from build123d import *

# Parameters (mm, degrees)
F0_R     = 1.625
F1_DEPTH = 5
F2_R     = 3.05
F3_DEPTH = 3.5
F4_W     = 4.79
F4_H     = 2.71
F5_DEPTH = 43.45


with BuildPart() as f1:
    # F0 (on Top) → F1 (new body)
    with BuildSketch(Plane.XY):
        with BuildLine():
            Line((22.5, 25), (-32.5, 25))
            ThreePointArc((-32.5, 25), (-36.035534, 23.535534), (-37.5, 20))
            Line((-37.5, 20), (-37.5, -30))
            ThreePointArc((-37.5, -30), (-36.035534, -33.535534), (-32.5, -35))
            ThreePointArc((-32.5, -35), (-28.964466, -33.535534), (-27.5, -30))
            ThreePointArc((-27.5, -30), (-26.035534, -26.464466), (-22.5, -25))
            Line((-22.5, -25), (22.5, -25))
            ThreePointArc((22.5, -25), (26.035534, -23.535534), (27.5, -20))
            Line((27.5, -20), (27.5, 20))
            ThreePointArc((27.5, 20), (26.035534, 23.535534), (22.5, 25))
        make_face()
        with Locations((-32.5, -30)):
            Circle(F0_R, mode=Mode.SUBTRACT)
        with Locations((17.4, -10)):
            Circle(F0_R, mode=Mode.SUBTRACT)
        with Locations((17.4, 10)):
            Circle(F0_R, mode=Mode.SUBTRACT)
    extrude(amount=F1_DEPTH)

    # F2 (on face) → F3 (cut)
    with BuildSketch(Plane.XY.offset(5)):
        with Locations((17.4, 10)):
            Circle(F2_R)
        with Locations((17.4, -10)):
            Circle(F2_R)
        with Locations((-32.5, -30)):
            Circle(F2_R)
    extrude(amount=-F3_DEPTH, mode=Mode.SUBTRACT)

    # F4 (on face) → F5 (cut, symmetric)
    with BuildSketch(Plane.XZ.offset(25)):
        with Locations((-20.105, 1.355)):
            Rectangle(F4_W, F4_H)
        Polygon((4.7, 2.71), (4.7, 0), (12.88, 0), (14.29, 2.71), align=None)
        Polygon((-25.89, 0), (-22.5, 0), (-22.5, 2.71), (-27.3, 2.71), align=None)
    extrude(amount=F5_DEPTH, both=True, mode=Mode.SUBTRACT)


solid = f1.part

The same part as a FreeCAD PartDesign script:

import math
import FreeCAD as App
import Part
import Sketcher

V = App.Vector
Q = App.Units.Quantity


def add_polygon(sketch, points):
    """Adds a closed chain of lines whose ends are joined by coincident constraints."""
    first, n = sketch.GeometryCount, len(points)
    for a, b in zip(points, points[1:] + points[:1]):
        sketch.addGeometry(Part.LineSegment(App.Vector(*a, 0), App.Vector(*b, 0)), False)
    for i in range(n):
        sketch.addConstraint(Sketcher.Constraint("Coincident", first + i, 2, first + (i + 1) % n, 1))

doc = App.newDocument("Part")
body = doc.addObject("PartDesign::Body", "Body")

# Sketch on XY plane
sketch1 = body.newObject("Sketcher::SketchObject", "Sketch")
sketch1.AttachmentSupport = (doc.getObject("XY_Plane"), [""])
sketch1.MapMode = "FlatFace"
sketch1.addGeometry(Part.LineSegment(V(22.5, 25, 0), V(-32.5, 25, 0)), False)
sketch1.addGeometry(Part.ArcOfCircle(Part.Circle(V(-32.5, 20, 0), V(0, 0, 1), 5), math.radians(90), math.radians(180)), False)
sketch1.addGeometry(Part.LineSegment(V(-37.5, 20, 0), V(-37.5, -30, 0)), False)
sketch1.addGeometry(Part.ArcOfCircle(Part.Circle(V(-32.5, -30, 0), V(0, 0, 1), 5), math.radians(180), math.radians(270)), False)
sketch1.addGeometry(Part.ArcOfCircle(Part.Circle(V(-32.5, -30, 0), V(0, 0, 1), 5), math.radians(-90), math.radians(0)), False)
sketch1.addGeometry(Part.ArcOfCircle(Part.Circle(V(-22.5, -30, 0), V(0, 0, 1), 5), math.radians(90), math.radians(180)), False)
sketch1.addGeometry(Part.LineSegment(V(-22.5, -25, 0), V(22.5, -25, 0)), False)
sketch1.addGeometry(Part.ArcOfCircle(Part.Circle(V(22.5, -20, 0), V(0, 0, 1), 5), math.radians(-90), math.radians(0)), False)
sketch1.addGeometry(Part.LineSegment(V(27.5, -20, 0), V(27.5, 20, 0)), False)
sketch1.addGeometry(Part.ArcOfCircle(Part.Circle(V(22.5, 20, 0), V(0, 0, 1), 5), math.radians(0), math.radians(90)), False)
sketch1.addGeometry(Part.Circle(V(-32.5, -30, 0), V(0, 0, 1), 1.6), False)
sketch1.addGeometry(Part.Circle(V(17.4, -10, 0), V(0, 0, 1), 1.6), False)
sketch1.addGeometry(Part.Circle(V(17.4, 10, 0), V(0, 0, 1), 1.6), False)
sketch1.addConstraint(Sketcher.Constraint("Tangent", 0, 2, 1, 1))
sketch1.addConstraint(Sketcher.Constraint("Tangent", 1, 2, 2, 1))
sketch1.addConstraint(Sketcher.Constraint("Tangent", 2, 2, 3, 1))
sketch1.addConstraint(Sketcher.Constraint("Tangent", 3, 2, 4, 1))
sketch1.addConstraint(Sketcher.Constraint("Tangent", 4, 2, 5, 2))
sketch1.addConstraint(Sketcher.Constraint("Tangent", 5, 1, 6, 1))
sketch1.addConstraint(Sketcher.Constraint("Tangent", 6, 2, 7, 1))
sketch1.addConstraint(Sketcher.Constraint("Tangent", 7, 2, 8, 1))
sketch1.addConstraint(Sketcher.Constraint("Tangent", 8, 2, 9, 1))
sketch1.addConstraint(Sketcher.Constraint("Tangent", 9, 2, 0, 1))
sketch1.addConstraint(Sketcher.Constraint("Horizontal", 0))
sketch1.addConstraint(Sketcher.Constraint("Vertical", 2))
sketch1.addConstraint(Sketcher.Constraint("Horizontal", 6))
sketch1.addConstraint(Sketcher.Constraint("Vertical", 8))
sketch1.addConstraint(Sketcher.Constraint("Coincident", 10, 3, 3, 3))
sketch1.addConstraint(Sketcher.Constraint("Equal", 1, 3))
sketch1.addConstraint(Sketcher.Constraint("Equal", 3, 4))
sketch1.addConstraint(Sketcher.Constraint("Equal", 4, 5))
sketch1.addConstraint(Sketcher.Constraint("Equal", 5, 7))
sketch1.addConstraint(Sketcher.Constraint("Equal", 7, 9))
sketch1.addConstraint(Sketcher.Constraint("Equal", 10, 11))
sketch1.addConstraint(Sketcher.Constraint("Equal", 11, 12))
sketch1.addConstraint(Sketcher.Constraint("Symmetric", 5, 1, 9, 2, -1, 1))
sketch1.addConstraint(Sketcher.Constraint("Symmetric", 11, 3, 12, 3, -1))
sketch1.addConstraint(Sketcher.Constraint("Horizontal", 4, 3, 5, 3))
sketch1.addConstraint(Sketcher.Constraint("Vertical", 0, 2, 3, 2))
sketch1.addConstraint(Sketcher.Constraint("Radius", 1, Q("5 mm")))
sketch1.addConstraint(Sketcher.Constraint("Diameter", 10, Q("3.25 mm")))
sketch1.addConstraint(Sketcher.Constraint("DistanceX", 0, 2, 0, 1, Q("55 mm")))
sketch1.addConstraint(Sketcher.Constraint("DistanceY", 2, 2, 2, 1, Q("50 mm")))
sketch1.addConstraint(Sketcher.Constraint("DistanceY", 11, 3, -1, 1, Q("10 mm")))
sketch1.addConstraint(Sketcher.Constraint("DistanceX", -1, 1, 11, 3, Q("17.4 mm")))
pad1 = body.newObject("PartDesign::Pad", "Pad")
pad1.Profile = sketch1
pad1.Length = 5

# Sketch on XY plane
sketch2 = body.newObject("Sketcher::SketchObject", "Sketch001")
sketch2.AttachmentSupport = (doc.getObject("XY_Plane"), [""])
sketch2.MapMode = "FlatFace"
sketch2.AttachmentOffset = App.Placement(V(0, 0, 5), App.Rotation())
sketch2.addGeometry(Part.Circle(V(17.4, 10, 0), V(0, 0, 1), 3), False)
sketch2.addGeometry(Part.Circle(V(17.4, -10, 0), V(0, 0, 1), 3), False)
sketch2.addGeometry(Part.Circle(V(-32.5, -30, 0), V(0, 0, 1), 3), False)
sketch2.addConstraint(Sketcher.Constraint("Equal", 0, 1))
sketch2.addConstraint(Sketcher.Constraint("Equal", 1, 2))
sketch2.addConstraint(Sketcher.Constraint("Symmetric", 0, 3, 1, 3, -1))
sketch2.addConstraint(Sketcher.Constraint("Diameter", 0, Q("6.1 mm")))
sketch2.addConstraint(Sketcher.Constraint("DistanceY", -1, 1, 0, 3, Q("10 mm")))
sketch2.addConstraint(Sketcher.Constraint("DistanceY", 2, 3, -1, 1, Q("30 mm")))
sketch2.addConstraint(Sketcher.Constraint("DistanceX", -1, 1, 0, 3, Q("17.4 mm")))
sketch2.addConstraint(Sketcher.Constraint("DistanceX", 2, 3, -1, 1, Q("32.5 mm")))
pocket1 = body.newObject("PartDesign::Pocket", "Pocket")
pocket1.Profile = sketch2
pocket1.Length = 3.5

# Sketch on XZ plane
sketch3 = body.newObject("Sketcher::SketchObject", "Sketch002")
sketch3.AttachmentSupport = (doc.getObject("XZ_Plane"), [""])
sketch3.MapMode = "FlatFace"
sketch3.AttachmentOffset = App.Placement(V(0, 0, 25), App.Rotation())
add_polygon(sketch3, [(-17.7, 0), (-17.7, 2.7), (-27.3, 2.7), (-25.9, 0)])  # lines 0-3
add_polygon(sketch3, [(4.7, 2.7), (4.7, 0), (12.9, 0), (14.3, 2.7)])  # lines 4-7
sketch3.addConstraint(Sketcher.Constraint("Vertical", 0))
sketch3.addConstraint(Sketcher.Constraint("Horizontal", 1))
sketch3.addConstraint(Sketcher.Constraint("Horizontal", 3))
sketch3.addConstraint(Sketcher.Constraint("Vertical", 4))
sketch3.addConstraint(Sketcher.Constraint("Horizontal", 5))
sketch3.addConstraint(Sketcher.Constraint("Horizontal", 7))
sketch3.addConstraint(Sketcher.Constraint("PointOnObject", 2, 2, -1))
sketch3.addConstraint(Sketcher.Constraint("PointOnObject", 4, 2, -1))
sketch3.addConstraint(Sketcher.Constraint("Horizontal", 1, 2, 6, 2))
sketch3.addConstraint(Sketcher.Constraint("Equal", 3, 5))
sketch3.addConstraint(Sketcher.Constraint("Equal", 1, 7))
sketch3.addConstraint(Sketcher.Constraint("DistanceX", 1, 2, 4, 2, Q("32 mm")))
sketch3.addConstraint(Sketcher.Constraint("DistanceX", 1, 2, 1, 1, Q("9.59 mm")))
sketch3.addConstraint(Sketcher.Constraint("DistanceX", 3, 1, 3, 2, Q("8.18 mm")))
sketch3.addConstraint(Sketcher.Constraint("DistanceY", 0, 1, 0, 2, Q("2.71 mm")))
sketch3.addConstraint(Sketcher.Constraint("DistanceX", 1, 2, -1, 1, Q("27.3 mm")))
pocket2 = body.newObject("PartDesign::Pocket", "Pocket001")
pocket2.Profile = sketch3
pocket2.Length = 86.9
pocket2.Midplane = True

doc.recompute()
